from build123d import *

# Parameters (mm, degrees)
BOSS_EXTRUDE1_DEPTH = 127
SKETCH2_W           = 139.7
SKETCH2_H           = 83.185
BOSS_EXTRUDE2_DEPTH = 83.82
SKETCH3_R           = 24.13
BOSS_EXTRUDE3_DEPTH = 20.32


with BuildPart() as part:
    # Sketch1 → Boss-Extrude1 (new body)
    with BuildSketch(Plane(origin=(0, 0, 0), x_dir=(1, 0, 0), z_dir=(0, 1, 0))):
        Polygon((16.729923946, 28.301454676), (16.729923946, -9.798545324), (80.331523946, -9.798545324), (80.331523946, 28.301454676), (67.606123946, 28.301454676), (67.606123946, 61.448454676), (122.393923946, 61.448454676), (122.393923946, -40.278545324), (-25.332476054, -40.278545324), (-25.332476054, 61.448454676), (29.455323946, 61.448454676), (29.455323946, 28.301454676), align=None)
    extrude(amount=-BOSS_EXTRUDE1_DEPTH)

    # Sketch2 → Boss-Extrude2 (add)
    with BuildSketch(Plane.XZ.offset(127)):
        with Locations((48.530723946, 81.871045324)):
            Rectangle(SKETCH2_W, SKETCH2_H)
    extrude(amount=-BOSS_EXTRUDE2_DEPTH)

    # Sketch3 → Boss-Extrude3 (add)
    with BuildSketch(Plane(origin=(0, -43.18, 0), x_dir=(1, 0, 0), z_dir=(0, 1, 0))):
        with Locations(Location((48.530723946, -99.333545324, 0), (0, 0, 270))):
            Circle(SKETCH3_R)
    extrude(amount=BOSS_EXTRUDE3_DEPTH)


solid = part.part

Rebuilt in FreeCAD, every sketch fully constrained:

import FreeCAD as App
import Part
import Sketcher
Q = App.Units.Quantity

doc = App.newDocument("Part")
params = doc.addObject("Spreadsheet::Sheet", "Params")
for row, (alias, value) in enumerate([
    ("sketch1_height", "1.5 in"),
    ("sketch1_width", "0.501 in"),
    ("sketch1_width2", "2.157 in"),
    ("sketch1_width3", "5.816 in"),
    ("sketch1_height2", "1.305 in"),
    ("pad1_length", "5 in"),
    ("sketch2_width", "5.5 in"),
    ("sketch2_height", "3.275 in"),
    ("pad2_length", "3.3 in"),
    ("sketch3_diameter", "1.9 in"),
    ("pad3_length", "0.8 in"),
], start=1):
    params.set(f"A{row}", alias)
    params.set(f"B{row}", "=" + value)
    params.setAlias(f"B{row}", alias)

body = doc.addObject("PartDesign::Body", "Body")

# Sketch on XZ plane
sketch1 = body.newObject("Sketcher::SketchObject", "Sketch")
sketch1.AttachmentSupport = (doc.getObject("XZ_Plane"), [""])
sketch1.MapMode = "FlatFace"
sketch1.addGeometry([
    Part.LineSegment(App.Vector(17, 10, 0), App.Vector(17, -28, 0)),  # 0
    Part.LineSegment(App.Vector(17, -28, 0), App.Vector(29, -28, 0)),  # 1
    Part.LineSegment(App.Vector(29, -28, 0), App.Vector(29, -61, 0)),  # 2
    Part.LineSegment(App.Vector(29, -61, 0), App.Vector(-25, -61, 0)),  # 3
    Part.LineSegment(App.Vector(-25, -61, 0), App.Vector(-25, 40, 0)),  # 4
    Part.LineSegment(App.Vector(-25, 40, 0), App.Vector(122, 40, 0)),  # 5
    Part.LineSegment(App.Vector(122, 40, 0), App.Vector(122, -61, 0)),  # 6
    Part.LineSegment(App.Vector(122, -61, 0), App.Vector(68, -61, 0)),  # 7
    Part.LineSegment(App.Vector(68, -61, 0), App.Vector(68, -28, 0)),  # 8
    Part.LineSegment(App.Vector(68, -28, 0), App.Vector(80, -28, 0)),  # 9
    Part.LineSegment(App.Vector(80, -28, 0), App.Vector(80, 10, 0)),  # 10
    Part.LineSegment(App.Vector(80, 10, 0), App.Vector(17, 10, 0)),  # 11
], False)
sketch1.addConstraint([
    Sketcher.Constraint("Coincident", 0, 2, 1, 1),
    Sketcher.Constraint("Coincident", 1, 2, 2, 1),
    Sketcher.Constraint("Coincident", 2, 2, 3, 1),
    Sketcher.Constraint("Coincident", 3, 2, 4, 1),
    Sketcher.Constraint("Coincident", 4, 2, 5, 1),
    Sketcher.Constraint("Coincident", 5, 2, 6, 1),
    Sketcher.Constraint("Coincident", 6, 2, 7, 1),
    Sketcher.Constraint("Coincident", 7, 2, 8, 1),
    Sketcher.Constraint("Coincident", 8, 2, 9, 1),
    Sketcher.Constraint("Coincident", 9, 2, 10, 1),
    Sketcher.Constraint("Coincident", 10, 2, 11, 1),
    Sketcher.Constraint("Coincident", 11, 2, 0, 1),
    Sketcher.Constraint("Vertical", 0),
    Sketcher.Constraint("Horizontal", 1),
    Sketcher.Constraint("Vertical", 2),
    Sketcher.Constraint("Horizontal", 3),
    Sketcher.Constraint("Vertical", 4),
    Sketcher.Constraint("Horizontal", 5),
    Sketcher.Constraint("Vertical", 6),
    Sketcher.Constraint("Horizontal", 7),
    Sketcher.Constraint("Vertical", 8),
    Sketcher.Constraint("Horizontal", 9),
    Sketcher.Constraint("Vertical", 10),
    Sketcher.Constraint("Horizontal", 11),
    Sketcher.Constraint("Horizontal", 3, 2, 6, 2),
    Sketcher.Constraint("Horizontal", 1, 2, 8, 2),
    Sketcher.Constraint("Equal", 3, 7),
    Sketcher.Constraint("Equal", 1, 9),
    Sketcher.Constraint("DistanceY", 0, 2, 0, 1, Q("1.5 in")),
    Sketcher.Constraint("DistanceY", 0, 2, 4, 2, Q("2.7 in")),
    Sketcher.Constraint("DistanceX", 1, 1, 1, 2, Q("0.501 in")),
    Sketcher.Constraint("DistanceX", 3, 2, 3, 1, Q("2.157 in")),
    Sketcher.Constraint("DistanceX", 5, 1, 5, 2, Q("5.816 in")),
    Sketcher.Constraint("DistanceY", 2, 2, 2, 1, Q("1.305 in")),
    Sketcher.Constraint("DistanceX", -1, 1, 0, 2, 16.729924),
    Sketcher.Constraint("DistanceY", 0, 2, -1, 1, 28.301455),
])
sketch1.setExpression("Constraints[28]", "Params.sketch1_height")
sketch1.setExpression("Constraints[30]", "Params.sketch1_width")
sketch1.setExpression("Constraints[31]", "Params.sketch1_width2")
sketch1.setExpression("Constraints[32]", "Params.sketch1_width3")
sketch1.setExpression("Constraints[33]", "Params.sketch1_height2")
pad1 = body.newObject("PartDesign::Pad", "Pad")
pad1.Profile = sketch1
pad1.setExpression("Length", "Params.pad1_length")

# Sketch on XZ plane
sketch2 = body.newObject("Sketcher::SketchObject", "Sketch001")
sketch2.AttachmentSupport = (doc.getObject("XZ_Plane"), [""])
sketch2.MapMode = "FlatFace"
sketch2.AttachmentOffset = App.Placement(App.Vector(0, 0, 5 * 25.4), App.Rotation())
sketch2.addGeometry([
    Part.LineSegment(App.Vector(-21, 123, 0), App.Vector(-21, 40, 0)),
    Part.LineSegment(App.Vector(-21, 40, 0), App.Vector(118, 40, 0)),
    Part.LineSegment(App.Vector(118, 40, 0), App.Vector(118, 123, 0)),
    Part.LineSegment(App.Vector(118, 123, 0), App.Vector(-21, 123, 0)),
], False)
sketch2.addConstraint([
    Sketcher.Constraint("Coincident", 0, 2, 1, 1),
    Sketcher.Constraint("Coincident", 1, 2, 2, 1),
    Sketcher.Constraint("Coincident", 2, 2, 3, 1),
    Sketcher.Constraint("Coincident", 3, 2, 0, 1),
    Sketcher.Constraint("Vertical", 0),
    Sketcher.Constraint("Horizontal", 1),
    Sketcher.Constraint("Vertical", 2),
    Sketcher.Constraint("Horizontal", 3),
    Sketcher.Constraint("DistanceX", 1, 1, 1, 2, Q("5.5 in")),
    Sketcher.Constraint("DistanceY", 0, 2, 0, 1, Q("3.275 in")),
    Sketcher.Constraint("DistanceX", 0, 2, -1, 1, 21.319276),
    Sketcher.Constraint("DistanceY", -1, 1, 0, 2, 40.278545),
])
sketch2.setExpression("Constraints[8]", "Params.sketch2_width")
sketch2.setExpression("Constraints[9]", "Params.sketch2_height")
pad2 = body.newObject("PartDesign::Pad", "Pad001")
pad2.Profile = sketch2
pad2.setExpression("Length", "Params.pad2_length")
pad2.Reversed = True

# Sketch on XZ plane
sketch3 = body.newObject("Sketcher::SketchObject", "Sketch002")
sketch3.AttachmentSupport = (doc.getObject("XZ_Plane"), [""])
sketch3.MapMode = "FlatFace"
sketch3.AttachmentOffset = App.Placement(App.Vector(0, 0, 1.7 * 25.4), App.Rotation())
sketch3.addGeometry(Part.Circle(App.Vector(49, 99, 0), App.Vector(0, 0, 1), 24), False)
sketch3.addConstraint([
    Sketcher.Constraint("Diameter", 0, Q("1.9 in")),
    Sketcher.Constraint("DistanceX", -1, 1, 0, 3, 48.530724),
    Sketcher.Constraint("DistanceY", -1, 1, 0, 3, 99.333545),
])
sketch3.setExpression("Constraints[0]", "Params.sketch3_diameter")
pad3 = body.newObject("PartDesign::Pad", "Pad002")
pad3.Profile = sketch3
pad3.setExpression("Length", "Params.pad3_length")
pad3.Reversed = True

doc.recompute()
